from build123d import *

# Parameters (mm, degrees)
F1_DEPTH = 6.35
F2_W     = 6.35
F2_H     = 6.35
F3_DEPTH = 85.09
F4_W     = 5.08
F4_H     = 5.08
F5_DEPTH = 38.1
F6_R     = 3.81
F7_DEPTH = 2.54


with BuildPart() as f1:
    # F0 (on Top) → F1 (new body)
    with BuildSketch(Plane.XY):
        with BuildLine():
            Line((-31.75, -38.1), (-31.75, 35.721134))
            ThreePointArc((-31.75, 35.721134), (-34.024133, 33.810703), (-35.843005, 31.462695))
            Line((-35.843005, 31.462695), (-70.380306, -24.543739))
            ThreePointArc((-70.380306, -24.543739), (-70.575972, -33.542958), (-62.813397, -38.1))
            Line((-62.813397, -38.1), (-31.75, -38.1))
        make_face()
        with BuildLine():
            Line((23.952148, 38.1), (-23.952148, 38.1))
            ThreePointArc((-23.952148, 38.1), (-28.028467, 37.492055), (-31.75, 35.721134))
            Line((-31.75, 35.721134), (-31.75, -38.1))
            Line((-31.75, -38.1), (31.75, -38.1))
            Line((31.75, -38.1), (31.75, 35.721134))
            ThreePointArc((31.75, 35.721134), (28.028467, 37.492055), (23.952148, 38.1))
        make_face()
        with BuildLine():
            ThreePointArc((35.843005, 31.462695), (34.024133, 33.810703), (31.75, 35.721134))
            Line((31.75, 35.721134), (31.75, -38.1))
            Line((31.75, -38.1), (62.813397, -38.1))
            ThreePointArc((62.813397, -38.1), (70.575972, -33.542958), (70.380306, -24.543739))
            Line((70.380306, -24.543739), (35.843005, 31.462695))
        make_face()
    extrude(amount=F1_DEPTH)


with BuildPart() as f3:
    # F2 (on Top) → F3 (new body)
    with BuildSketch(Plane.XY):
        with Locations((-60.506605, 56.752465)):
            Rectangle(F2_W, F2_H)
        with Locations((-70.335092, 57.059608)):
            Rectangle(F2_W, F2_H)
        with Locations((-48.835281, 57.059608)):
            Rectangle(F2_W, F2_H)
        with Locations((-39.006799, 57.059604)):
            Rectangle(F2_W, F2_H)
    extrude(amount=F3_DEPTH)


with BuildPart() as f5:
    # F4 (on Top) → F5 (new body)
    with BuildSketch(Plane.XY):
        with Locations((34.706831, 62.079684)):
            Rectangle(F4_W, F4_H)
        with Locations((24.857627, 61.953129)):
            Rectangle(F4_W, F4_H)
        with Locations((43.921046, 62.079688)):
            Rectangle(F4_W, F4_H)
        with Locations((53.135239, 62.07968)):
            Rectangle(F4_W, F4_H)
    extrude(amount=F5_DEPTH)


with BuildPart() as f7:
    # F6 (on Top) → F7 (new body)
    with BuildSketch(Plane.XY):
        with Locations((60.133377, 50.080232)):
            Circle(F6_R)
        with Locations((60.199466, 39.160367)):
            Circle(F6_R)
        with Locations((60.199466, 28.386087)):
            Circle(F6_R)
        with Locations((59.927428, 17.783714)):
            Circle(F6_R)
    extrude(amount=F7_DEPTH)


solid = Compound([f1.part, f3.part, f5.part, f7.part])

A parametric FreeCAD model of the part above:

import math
import FreeCAD as App
import Part
import Sketcher

V = App.Vector
Q = App.Units.Quantity

doc = App.newDocument("Part")
body = doc.addObject("PartDesign::Body", "Body")

# Sketch on XY plane
sketch1 = doc.addObject("Sketcher::SketchObject", "Sketch")
body.addObject(sketch1)
sketch1.AttachmentSupport = (doc.XY_Plane, [""])
sketch1.MapMode = "FlatFace"
sketch1.addGeometry([
    Part.ArcOfCircle(Part.Circle(V(-23.952152, 24.130002, 0), V(0, 0, 1), 13.969995), math.radians(123.930402), math.radians(148.339249)),  # 0
    Part.LineSegment(V(-35.843005, 31.462695, 0), V(-70.380306, -24.543739, 0)),  # 1
    Part.ArcOfCircle(Part.Circle(V(-62.813396, -29.21, 0), V(0, 0, 1), 8.89), math.radians(148.339251), math.radians(269.999997)),  # 2
    Part.LineSegment(V(-62.813397, -38.1, 0), V(62.813397, -38.1, 0)),  # 3
    Part.ArcOfCircle(Part.Circle(V(62.813396, -29.21, 0), V(0, 0, 1), 8.89), math.radians(-89.999997), math.radians(31.660749)),  # 4
    Part.LineSegment(V(70.380306, -24.543739, 0), V(35.843005, 31.462695, 0)),  # 5
    Part.ArcOfCircle(Part.Circle(V(23.952152, 24.130002, 0), V(0, 0, 1), 13.969995), math.radians(31.660751), math.radians(56.069598)),  # 6
    Part.ArcOfCircle(Part.Circle(V(23.952147, 24.129999, 0), V(0, 0, 1), 13.970001), math.radians(56.069587), math.radians(89.999995)),  # 7
    Part.LineSegment(V(23.952148, 38.1, 0), V(-23.952148, 38.1, 0)),  # 8
    Part.ArcOfCircle(Part.Circle(V(-23.952147, 24.129999, 0), V(0, 0, 1), 13.970001), math.radians(90.000005), math.radians(123.930413)),  # 9
], False)
sketch1.addConstraint([
    Sketcher.Constraint("Tangent", 0, 2, 1, 1),
    Sketcher.Constraint("Tangent", 1, 2, 2, 1),
    Sketcher.Constraint("Tangent", 2, 2, 3, 1),
    Sketcher.Constraint("Tangent", 3, 2, 4, 1),
    Sketcher.Constraint("Tangent", 4, 2, 5, 1),
    Sketcher.Constraint("Tangent", 5, 2, 6, 1),
    Sketcher.Constraint("Tangent", 6, 2, 7, 1),
    Sketcher.Constraint("Tangent", 7, 2, 8, 1),
    Sketcher.Constraint("Tangent", 8, 2, 9, 1),
    Sketcher.Constraint("Tangent", 9, 2, 0, 1),
    Sketcher.Constraint("Horizontal", 3),
    Sketcher.Constraint("Horizontal", 8),
    Sketcher.Constraint("Equal", 2, 4),
    Sketcher.Constraint("Equal", 0, 6),
    Sketcher.Constraint("Equal", 7, 9),
    Sketcher.Constraint("Symmetric", 0, 3, 7, 3, -2),
    Sketcher.Constraint("Horizontal", 1, 2, 4, 2),
    Sketcher.Constraint("Horizontal", 6, 2, 9, 2),
    Sketcher.Constraint("Radius", 0, Q("0.5499998 in")),
    Sketcher.Constraint("Radius", 2, Q("0.35 in")),
    Sketcher.Constraint("DistanceY", 2, 2, -1, 1, Q("1.5 in")),
    Sketcher.Constraint("DistanceY", -1, 1, 7, 2, Q("1.5 in")),
    Sketcher.Constraint("DistanceX", -1, 1, 6, 2, Q("1.25 in")),
    Sketcher.Constraint("DistanceX", 0, 3, 7, 3, 47.904299),
    Sketcher.Constraint("DistanceX", 1, 2, 0, 2, 34.537301),
])
pad1 = doc.addObject("PartDesign::Pad", "Pad")
body.addObject(pad1)
pad1.Profile = sketch1
pad1.Length = Q("0.25 in")
body2 = doc.addObject("PartDesign::Body", "Body001")
body2.AllowCompound = True

# Sketch on XY plane
sketch2 = doc.addObject("Sketcher::SketchObject", "Sketch001")
body2.addObject(sketch2)
sketch2.AttachmentSupport = (doc.getObject("XY_Plane001"), [""])
sketch2.MapMode = "FlatFace"
sketch2.addGeometry([
    Part.LineSegment(V(-63.681605, 59.927465, 0), V(-63.681605, 53.577465, 0)),  # 0
    Part.LineSegment(V(-63.681605, 53.577465, 0), V(-57.331605, 53.577465, 0)),  # 1
    Part.LineSegment(V(-57.331605, 53.577465, 0), V(-57.331605, 59.927465, 0)),  # 2
    Part.LineSegment(V(-57.331605, 59.927465, 0), V(-63.681605, 59.927465, 0)),  # 3
    Part.LineSegment(V(-73.510092, 60.234608, 0), V(-73.510092, 53.884608, 0)),  # 4
    Part.LineSegment(V(-73.510092, 53.884608, 0), V(-67.160092, 53.884608, 0)),  # 5
    Part.LineSegment(V(-67.160092, 53.884608, 0), V(-67.160092, 60.234608, 0)),  # 6
    Part.LineSegment(V(-67.160092, 60.234608, 0), V(-73.510092, 60.234608, 0)),  # 7
    Part.LineSegment(V(-52.010281, 60.234608, 0), V(-52.010281, 53.884608, 0)),  # 8
    Part.LineSegment(V(-52.010281, 53.884608, 0), V(-45.660281, 53.884608, 0)),  # 9
    Part.LineSegment(V(-45.660281, 53.884608, 0), V(-45.660281, 60.234608, 0)),  # 10
    Part.LineSegment(V(-45.660281, 60.234608, 0), V(-52.010281, 60.234608, 0)),  # 11
    Part.LineSegment(V(-42.181799, 60.234604, 0), V(-42.181799, 53.884604, 0)),  # 12
    Part.LineSegment(V(-42.181799, 53.884604, 0), V(-35.831799, 53.884604, 0)),  # 13
    Part.LineSegment(V(-35.831799, 53.884604, 0), V(-35.831799, 60.234604, 0)),  # 14
    Part.LineSegment(V(-35.831799, 60.234604, 0), V(-42.181799, 60.234604, 0)),  # 15
], False)
sketch2.addConstraint([
    Sketcher.Constraint("Coincident", 0, 2, 1, 1),
    Sketcher.Constraint("Coincident", 1, 2, 2, 1),
    Sketcher.Constraint("Coincident", 2, 2, 3, 1),
    Sketcher.Constraint("Coincident", 3, 2, 0, 1),
    Sketcher.Constraint("Coincident", 4, 2, 5, 1),
    Sketcher.Constraint("Coincident", 5, 2, 6, 1),
    Sketcher.Constraint("Coincident", 6, 2, 7, 1),
    Sketcher.Constraint("Coincident", 7, 2, 4, 1),
    Sketcher.Constraint("Coincident", 8, 2, 9, 1),
    Sketcher.Constraint("Coincident", 9, 2, 10, 1),
    Sketcher.Constraint("Coincident", 10, 2, 11, 1),
    Sketcher.Constraint("Coincident", 11, 2, 8, 1),
    Sketcher.Constraint("Coincident", 12, 2, 13, 1),
    Sketcher.Constraint("Coincident", 13, 2, 14, 1),
    Sketcher.Constraint("Coincident", 14, 2, 15, 1),
    Sketcher.Constraint("Coincident", 15, 2, 12, 1),
    Sketcher.Constraint("Vertical", 0),
    Sketcher.Constraint("Horizontal", 1),
    Sketcher.Constraint("Vertical", 2),
    Sketcher.Constraint("Horizontal", 3),
    Sketcher.Constraint("Vertical", 4),
    Sketcher.Constraint("Horizontal", 5),
    Sketcher.Constraint("Vertical", 6),
    Sketcher.Constraint("Horizontal", 7),
    Sketcher.Constraint("Vertical", 8),
    Sketcher.Constraint("Horizontal", 9),
    Sketcher.Constraint("Vertical", 10),
    Sketcher.Constraint("Horizontal", 11),
    Sketcher.Constraint("Vertical", 12),
    Sketcher.Constraint("Horizontal", 13),
    Sketcher.Constraint("Vertical", 14),
    Sketcher.Constraint("Horizontal", 15),
    Sketcher.Constraint("Horizontal", 5, 2, 8, 2),
    Sketcher.Constraint("Horizontal", 7, 2, 10, 2),
    Sketcher.Constraint("Equal", 3, 5),
    Sketcher.Constraint("Equal", 7, 9),
    Sketcher.Constraint("Equal", 11, 13),
    Sketcher.Constraint("Equal", 15, 0),
    Sketcher.Constraint("Equal", 2, 4),
    Sketcher.Constraint("Equal", 10, 12),
    Sketcher.Constraint("DistanceX", 1, 1, 1, 2, Q("0.25 in")),
    Sketcher.Constraint("DistanceY", 12, 2, 10, 2, Q("0.2500002 in")),
    Sketcher.Constraint("DistanceX", 12, 2, -1, 1, 42.181799),
    Sketcher.Constraint("DistanceX", 4, 2, -1, 1, 73.510092),
    Sketcher.Constraint("DistanceX", 8, 2, -1, 1, 52.010281),
    Sketcher.Constraint("DistanceY", 1, 2, 12, 2, 0.307139),
    Sketcher.Constraint("DistanceX", 0, 2, -1, 1, 63.681605),
    Sketcher.Constraint("DistanceY", -1, 1, 0, 2, 53.577465),
])
pad2 = doc.addObject("PartDesign::Pad", "Pad001")
body2.addObject(pad2)
pad2.Profile = sketch2
pad2.Length = Q("3.35 in")
body3 = doc.addObject("PartDesign::Body", "Body002")
body3.AllowCompound = True

# Sketch on XY plane
sketch3 = doc.addObject("Sketcher::SketchObject", "Sketch002")
body3.addObject(sketch3)
sketch3.AttachmentSupport = (doc.getObject("XY_Plane002"), [""])
sketch3.MapMode = "FlatFace"
sketch3.addGeometry([
    Part.LineSegment(V(32.166831, 64.619684, 0), V(32.166831, 59.539684, 0)),  # 0
    Part.LineSegment(V(32.166831, 59.539684, 0), V(37.246831, 59.539684, 0)),  # 1
    Part.LineSegment(V(37.246831, 59.539684, 0), V(37.246831, 64.619684, 0)),  # 2
    Part.LineSegment(V(37.246831, 64.619684, 0), V(32.166831, 64.619684, 0)),  # 3
    Part.LineSegment(V(22.317627, 64.493129, 0), V(22.317627, 59.413129, 0)),  # 4
    Part.LineSegment(V(22.317627, 59.413129, 0), V(27.397627, 59.413129, 0)),  # 5
    Part.LineSegment(V(27.397627, 59.413129, 0), V(27.397627, 64.493129, 0)),  # 6
    Part.LineSegment(V(27.397627, 64.493129, 0), V(22.317627, 64.493129, 0)),  # 7
    Part.LineSegment(V(41.381046, 64.619688, 0), V(41.381046, 59.539688, 0)),  # 8
    Part.LineSegment(V(41.381046, 59.539688, 0), V(46.461046, 59.539688, 0)),  # 9
    Part.LineSegment(V(46.461046, 59.539688, 0), V(46.461046, 64.619688, 0)),  # 10
    Part.LineSegment(V(46.461046, 64.619688, 0), V(41.381046, 64.619688, 0)),  # 11
    Part.LineSegment(V(50.595239, 64.61968, 0), V(50.595239, 59.53968, 0)),  # 12
    Part.LineSegment(V(50.595239, 59.53968, 0), V(55.675239, 59.53968, 0)),  # 13
    Part.LineSegment(V(55.675239, 59.53968, 0), V(55.675239, 64.61968, 0)),  # 14
    Part.LineSegment(V(55.675239, 64.61968, 0), V(50.595239, 64.61968, 0)),  # 15
], False)
sketch3.addConstraint([
    Sketcher.Constraint("Coincident", 0, 2, 1, 1),
    Sketcher.Constraint("Coincident", 1, 2, 2, 1),
    Sketcher.Constraint("Coincident", 2, 2, 3, 1),
    Sketcher.Constraint("Coincident", 3, 2, 0, 1),
    Sketcher.Constraint("Coincident", 4, 2, 5, 1),
    Sketcher.Constraint("Coincident", 5, 2, 6, 1),
    Sketcher.Constraint("Coincident", 6, 2, 7, 1),
    Sketcher.Constraint("Coincident", 7, 2, 4, 1),
    Sketcher.Constraint("Coincident", 8, 2, 9, 1),
    Sketcher.Constraint("Coincident", 9, 2, 10, 1),
    Sketcher.Constraint("Coincident", 10, 2, 11, 1),
    Sketcher.Constraint("Coincident", 11, 2, 8, 1),
    Sketcher.Constraint("Coincident", 12, 2, 13, 1),
    Sketcher.Constraint("Coincident", 13, 2, 14, 1),
    Sketcher.Constraint("Coincident", 14, 2, 15, 1),
    Sketcher.Constraint("Coincident", 15, 2, 12, 1),
    Sketcher.Constraint("Vertical", 0),
    Sketcher.Constraint("Horizontal", 1),
    Sketcher.Constraint("Vertical", 2),
    Sketcher.Constraint("Horizontal", 3),
    Sketcher.Constraint("Vertical", 4),
    Sketcher.Constraint("Horizontal", 5),
    Sketcher.Constraint("Vertical", 6),
    Sketcher.Constraint("Horizontal", 7),
    Sketcher.Constraint("Vertical", 8),
    Sketcher.Constraint("Horizontal", 9),
    Sketcher.Constraint("Vertical", 10),
    Sketcher.Constraint("Horizontal", 11),
    Sketcher.Constraint("Vertical", 12),
    Sketcher.Constraint("Horizontal", 13),
    Sketcher.Constraint("Vertical", 14),
    Sketcher.Constraint("Horizontal", 15),
    Sketcher.Constraint("Equal", 3, 5),
    Sketcher.Constraint("Equal", 7, 9),
    Sketcher.Constraint("Equal", 11, 13),
    Sketcher.Constraint("Equal", 15, 0),
    Sketcher.Constraint("Equal", 2, 4),
    Sketcher.Constraint("Equal", 6, 8),
    Sketcher.Constraint("Equal", 10, 12),
    Sketcher.Constraint("DistanceX", 1, 1, 1, 2, Q("0.2 in")),
    Sketcher.Constraint("DistanceY", 8, 2, 2, 2, Q("0.1999998 in")),
    Sketcher.Constraint("DistanceX", -1, 1, 0, 2, 32.166831),
    Sketcher.Constraint("DistanceY", -1, 1, 4, 2, 59.413129),
    Sketcher.Constraint("DistanceX", -1, 1, 12, 2, 50.595239),
    Sketcher.Constraint("DistanceY", -1, 1, 12, 2, 59.53968),
    Sketcher.Constraint("DistanceX", 5, 2, 8, 2, 13.983419),
    Sketcher.Constraint("DistanceY", 5, 2, 8, 2, 0.126559),
    Sketcher.Constraint("DistanceX", -1, 1, 4, 2, 22.317627),
])
pad3 = doc.addObject("PartDesign::Pad", "Pad002")
body3.addObject(pad3)
pad3.Profile = sketch3
pad3.Length = Q("1.5 in")
body4 = doc.addObject("PartDesign::Body", "Body003")
body4.AllowCompound = True

# Sketch on XY plane
sketch4 = doc.addObject("Sketcher::SketchObject", "Sketch003")
body4.addObject(sketch4)
sketch4.AttachmentSupport = (doc.getObject("XY_Plane003"), [""])
sketch4.MapMode = "FlatFace"
sketch4.addGeometry([
    Part.Circle(V(60.133377, 50.080232, 0), V(0, 0, 1), 3.81),
    Part.Circle(V(60.199466, 39.160367, 0), V(0, 0, 1), 3.81),
    Part.Circle(V(60.199466, 28.386087, 0), V(0, 0, 1), 3.81),
    Part.Circle(V(59.927428, 17.783714, 0), V(0, 0, 1), 3.81),
], False)
sketch4.addConstraint([
    Sketcher.Constraint("Equal", 0, 1),
    Sketcher.Constraint("Equal", 1, 2),
    Sketcher.Constraint("Equal", 2, 3),
    Sketcher.Constraint("Vertical", 1, 3, 2, 3),
    Sketcher.Constraint("Diameter", 0, Q("0.3 in")),
    Sketcher.Constraint("DistanceY", 2, 3, 0, 3, Q("0.8541002 in")),
    Sketcher.Constraint("DistanceX", 0, 3, 1, 3, 0.066089),
    Sketcher.Constraint("DistanceY", 2, 3, 1, 3, 10.77428),
    Sketcher.Constraint("DistanceX", 3, 3, 2, 3, 0.272038),
    Sketcher.Constraint("DistanceY", 3, 3, 0, 3, 32.296518),
    Sketcher.Constraint("DistanceX", -1, 1, 0, 3, 60.133377),
    Sketcher.Constraint("DistanceY", -1, 1, 0, 3, 50.080232),
])
pad4 = doc.addObject("PartDesign::Pad", "Pad003")
body4.addObject(pad4)
pad4.Profile = sketch4
pad4.Length = Q("0.1 in")

doc.recompute()
